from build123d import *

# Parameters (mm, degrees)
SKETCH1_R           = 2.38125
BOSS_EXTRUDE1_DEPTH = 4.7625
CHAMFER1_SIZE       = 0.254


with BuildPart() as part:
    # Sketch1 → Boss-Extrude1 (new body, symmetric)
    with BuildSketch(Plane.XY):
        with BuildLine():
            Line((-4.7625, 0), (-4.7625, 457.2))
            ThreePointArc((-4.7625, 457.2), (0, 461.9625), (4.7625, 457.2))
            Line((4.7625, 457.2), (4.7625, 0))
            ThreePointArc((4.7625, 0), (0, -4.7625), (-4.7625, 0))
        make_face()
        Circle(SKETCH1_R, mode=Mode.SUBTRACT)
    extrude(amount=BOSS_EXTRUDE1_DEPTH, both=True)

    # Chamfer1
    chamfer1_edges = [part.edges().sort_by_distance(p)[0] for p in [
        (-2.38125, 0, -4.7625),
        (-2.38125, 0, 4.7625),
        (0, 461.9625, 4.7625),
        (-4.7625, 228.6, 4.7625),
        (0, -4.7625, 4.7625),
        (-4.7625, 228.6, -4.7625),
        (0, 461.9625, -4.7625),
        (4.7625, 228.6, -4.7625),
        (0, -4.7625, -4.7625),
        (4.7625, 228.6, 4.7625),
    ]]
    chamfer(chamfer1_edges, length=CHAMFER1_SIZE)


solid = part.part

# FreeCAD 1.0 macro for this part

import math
import FreeCAD as App
import Part
import Sketcher
from FreeCAD import Vector
Q = App.Units.Quantity


def edges_at(feature, points):
    """Names of the edges that pass closest to the given points."""
    edges = feature.Shape.Edges
    near = lambda p: min(range(len(edges)), key=lambda i: edges[i].distToShape(Part.Vertex(*p))[0])
    return sorted({f"Edge{near(p) + 1}" for p in points})

doc = App.newDocument("Part")
params = doc.addObject("Spreadsheet::Sheet", "Params")
for row, (alias, value) in enumerate([
    ("sketch1_height", "18 in"),
    ("sketch1_diameter", "0.1875 in"),
    ("sketch1_radius", "0.1875 in"),
    ("pad1_length", "0.375 in"),
    ("chamfer_size", "0.01 in"),
], start=1):
    params.set(f"A{row}", alias)
    params.set(f"B{row}", "=" + value)
    params.setAlias(f"B{row}", alias)

body = doc.addObject("PartDesign::Body", "Body")

# Sketch on XY plane
sketch1 = body.newObject("Sketcher::SketchObject", "Sketch")
sketch1.AttachmentSupport = (doc.getObject("XY_Plane"), [""])
sketch1.MapMode = "FlatFace"
sketch1.addGeometry([
    Part.LineSegment(Vector(-4.8, 457.2, 0), Vector(-4.8, 0, 0)),  # 0
    Part.ArcOfCircle(Part.Circle(Vector(0, 0, 0), Vector(0, 0, 1), 4.8), math.radians(180), math.radians(360)),  # 1
    Part.LineSegment(Vector(4.8, 0, 0), Vector(4.8, 457.2, 0)),  # 2
    Part.ArcOfCircle(Part.Circle(Vector(0, 457.2, 0), Vector(0, 0, 1), 4.8), math.radians(0), math.radians(180)),  # 3
    Part.Circle(Vector(0, 0, 0), Vector(0, 0, 1), 2.4),  # 4
], False)
sketch1.addConstraint([
    Sketcher.Constraint("Tangent", 0, 2, 1, 1),
    Sketcher.Constraint("Tangent", 1, 2, 2, 1),
    Sketcher.Constraint("Tangent", 2, 2, 3, 1),
    Sketcher.Constraint("Tangent", 3, 2, 0, 1),
    Sketcher.Constraint("Vertical", 0),
    Sketcher.Constraint("Vertical", 2),
    Sketcher.Constraint("Coincident", 1, 3, -1, 1),
    Sketcher.Constraint("Coincident", 4, 3, -1, 1),
    Sketcher.Constraint("DistanceY", 0, 2, 0, 1, Q("18 in")),
    Sketcher.Constraint("Diameter", 4, Q("0.1875 in")),
    Sketcher.Constraint("Radius", 1, Q("0.1875 in")),
])
sketch1.setExpression("Constraints[8]", "Params.sketch1_height")
sketch1.setExpression("Constraints[9]", "Params.sketch1_diameter")
sketch1.setExpression("Constraints[10]", "Params.sketch1_radius")
pad1 = body.newObject("PartDesign::Pad", "Pad")
pad1.Profile = sketch1
pad1.setExpression("Length", "Params.pad1_length")
pad1.Midplane = True
doc.recompute()

chamfer = body.newObject("PartDesign::Chamfer", "Chamfer")
chamfer.Base = (pad1, edges_at(pad1, [
    (-2.381, 0, -4.763),
    (-2.381, 0, 4.763),
    (0, 461.962, 4.763),
    (-4.763, 228.6, 4.763),
    (0, -4.763, 4.763),
    (-4.763, 228.6, -4.763),
    (0, 461.962, -4.763),
    (4.763, 228.6, -4.763),
    (0, -4.763, -4.763),
    (4.763, 228.6, 4.763),
]))
chamfer.setExpression("Size", "Params.chamfer_size")

doc.recompute()
